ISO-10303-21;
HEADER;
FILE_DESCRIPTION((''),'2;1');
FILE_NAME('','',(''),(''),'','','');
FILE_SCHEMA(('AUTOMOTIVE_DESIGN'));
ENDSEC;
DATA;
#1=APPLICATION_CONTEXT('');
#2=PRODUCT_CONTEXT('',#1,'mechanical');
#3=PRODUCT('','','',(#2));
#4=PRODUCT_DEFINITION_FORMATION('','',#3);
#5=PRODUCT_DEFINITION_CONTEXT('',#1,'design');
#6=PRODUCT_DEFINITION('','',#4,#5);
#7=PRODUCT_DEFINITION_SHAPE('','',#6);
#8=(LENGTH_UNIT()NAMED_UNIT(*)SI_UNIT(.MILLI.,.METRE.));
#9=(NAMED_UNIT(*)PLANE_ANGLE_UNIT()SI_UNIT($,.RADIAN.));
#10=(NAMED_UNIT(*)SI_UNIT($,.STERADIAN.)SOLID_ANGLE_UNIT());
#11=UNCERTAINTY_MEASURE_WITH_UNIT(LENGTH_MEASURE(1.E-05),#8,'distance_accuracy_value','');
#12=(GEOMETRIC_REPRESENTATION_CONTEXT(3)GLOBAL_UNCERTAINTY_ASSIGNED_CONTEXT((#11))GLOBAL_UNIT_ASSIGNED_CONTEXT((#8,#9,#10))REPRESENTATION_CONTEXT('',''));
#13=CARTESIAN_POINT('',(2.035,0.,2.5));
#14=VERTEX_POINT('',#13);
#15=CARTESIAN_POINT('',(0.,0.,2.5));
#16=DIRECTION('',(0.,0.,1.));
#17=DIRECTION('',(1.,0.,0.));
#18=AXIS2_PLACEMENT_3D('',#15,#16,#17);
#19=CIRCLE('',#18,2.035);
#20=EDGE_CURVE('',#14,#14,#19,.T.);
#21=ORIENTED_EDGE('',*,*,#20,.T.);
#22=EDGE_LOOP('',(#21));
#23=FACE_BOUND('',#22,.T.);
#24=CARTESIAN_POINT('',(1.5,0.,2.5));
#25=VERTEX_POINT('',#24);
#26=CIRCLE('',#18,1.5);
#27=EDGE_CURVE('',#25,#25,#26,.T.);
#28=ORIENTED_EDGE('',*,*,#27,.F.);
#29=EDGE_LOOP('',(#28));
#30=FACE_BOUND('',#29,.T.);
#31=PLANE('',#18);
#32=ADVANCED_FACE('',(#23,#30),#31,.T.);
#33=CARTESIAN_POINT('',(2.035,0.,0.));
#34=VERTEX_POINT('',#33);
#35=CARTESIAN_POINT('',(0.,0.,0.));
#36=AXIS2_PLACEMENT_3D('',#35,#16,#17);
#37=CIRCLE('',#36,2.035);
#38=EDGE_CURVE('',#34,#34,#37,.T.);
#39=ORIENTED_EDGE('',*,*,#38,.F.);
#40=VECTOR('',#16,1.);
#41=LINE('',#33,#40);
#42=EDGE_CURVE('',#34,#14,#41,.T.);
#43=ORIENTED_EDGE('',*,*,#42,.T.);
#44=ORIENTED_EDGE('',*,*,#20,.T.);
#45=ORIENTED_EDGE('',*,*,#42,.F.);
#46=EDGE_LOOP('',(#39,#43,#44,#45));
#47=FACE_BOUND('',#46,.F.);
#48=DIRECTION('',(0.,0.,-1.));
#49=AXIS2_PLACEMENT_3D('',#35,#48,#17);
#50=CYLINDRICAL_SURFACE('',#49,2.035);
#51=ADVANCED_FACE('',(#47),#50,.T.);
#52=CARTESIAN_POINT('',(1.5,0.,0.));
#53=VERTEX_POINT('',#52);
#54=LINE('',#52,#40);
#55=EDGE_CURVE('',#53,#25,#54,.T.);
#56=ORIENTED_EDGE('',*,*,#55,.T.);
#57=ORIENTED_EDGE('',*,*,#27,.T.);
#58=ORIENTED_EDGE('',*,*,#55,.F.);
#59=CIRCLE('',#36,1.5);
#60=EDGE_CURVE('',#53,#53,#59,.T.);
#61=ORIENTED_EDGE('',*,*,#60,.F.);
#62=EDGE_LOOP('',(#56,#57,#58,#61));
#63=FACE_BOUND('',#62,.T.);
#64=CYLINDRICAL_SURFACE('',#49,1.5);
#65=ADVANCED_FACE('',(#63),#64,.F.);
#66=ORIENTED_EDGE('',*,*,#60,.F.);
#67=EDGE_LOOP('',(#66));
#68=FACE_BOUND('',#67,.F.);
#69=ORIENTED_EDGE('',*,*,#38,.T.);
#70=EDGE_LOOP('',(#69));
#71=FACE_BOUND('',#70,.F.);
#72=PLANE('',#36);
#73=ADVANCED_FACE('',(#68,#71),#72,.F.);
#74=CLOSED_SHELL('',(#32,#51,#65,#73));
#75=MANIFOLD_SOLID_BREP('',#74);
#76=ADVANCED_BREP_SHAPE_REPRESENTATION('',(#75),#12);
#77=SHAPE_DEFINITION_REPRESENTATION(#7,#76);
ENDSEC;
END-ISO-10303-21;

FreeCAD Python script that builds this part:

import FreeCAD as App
import Part
import Sketcher
from FreeCAD import Vector

doc = App.newDocument("Part")
params = doc.addObject("Spreadsheet::Sheet", "Params")
for row, (alias, value) in enumerate([
    ("sketch1_diameter", "3 mm"),
    ("sketch1_diameter2", "4.07 mm"),
    ("pad1_length", "2.5 mm"),
], start=1):
    params.set(f"A{row}", alias)
    params.set(f"B{row}", "=" + value)
    params.setAlias(f"B{row}", alias)

body = doc.addObject("PartDesign::Body", "Body")

sketch1 = body.newObject("Sketcher::SketchObject", "Sketch")
sketch1.AttachmentSupport = (doc.getObject("XY_Plane"), [""])
sketch1.MapMode = "FlatFace"
sketch1.addGeometry([
    Part.Circle(Vector(0, 0, 0), Vector(0, 0, 1), 2),
    Part.Circle(Vector(0, 0, 0), Vector(0, 0, 1), 1.5),
], False)
sketch1.addConstraint([
    Sketcher.Constraint("Coincident", 0, 3, -1, 1),
    Sketcher.Constraint("Coincident", 1, 3, -1, 1),
    Sketcher.Constraint("Diameter", 1, 3.0),
    Sketcher.Constraint("Diameter", 0, 4.07),
])
sketch1.setExpression("Constraints[2]", "Params.sketch1_diameter")
sketch1.setExpression("Constraints[3]", "Params.sketch1_diameter2")
pad1 = body.newObject("PartDesign::Pad", "Pad")
pad1.Profile = sketch1
pad1.setExpression("Length", "Params.pad1_length")

doc.recompute()
